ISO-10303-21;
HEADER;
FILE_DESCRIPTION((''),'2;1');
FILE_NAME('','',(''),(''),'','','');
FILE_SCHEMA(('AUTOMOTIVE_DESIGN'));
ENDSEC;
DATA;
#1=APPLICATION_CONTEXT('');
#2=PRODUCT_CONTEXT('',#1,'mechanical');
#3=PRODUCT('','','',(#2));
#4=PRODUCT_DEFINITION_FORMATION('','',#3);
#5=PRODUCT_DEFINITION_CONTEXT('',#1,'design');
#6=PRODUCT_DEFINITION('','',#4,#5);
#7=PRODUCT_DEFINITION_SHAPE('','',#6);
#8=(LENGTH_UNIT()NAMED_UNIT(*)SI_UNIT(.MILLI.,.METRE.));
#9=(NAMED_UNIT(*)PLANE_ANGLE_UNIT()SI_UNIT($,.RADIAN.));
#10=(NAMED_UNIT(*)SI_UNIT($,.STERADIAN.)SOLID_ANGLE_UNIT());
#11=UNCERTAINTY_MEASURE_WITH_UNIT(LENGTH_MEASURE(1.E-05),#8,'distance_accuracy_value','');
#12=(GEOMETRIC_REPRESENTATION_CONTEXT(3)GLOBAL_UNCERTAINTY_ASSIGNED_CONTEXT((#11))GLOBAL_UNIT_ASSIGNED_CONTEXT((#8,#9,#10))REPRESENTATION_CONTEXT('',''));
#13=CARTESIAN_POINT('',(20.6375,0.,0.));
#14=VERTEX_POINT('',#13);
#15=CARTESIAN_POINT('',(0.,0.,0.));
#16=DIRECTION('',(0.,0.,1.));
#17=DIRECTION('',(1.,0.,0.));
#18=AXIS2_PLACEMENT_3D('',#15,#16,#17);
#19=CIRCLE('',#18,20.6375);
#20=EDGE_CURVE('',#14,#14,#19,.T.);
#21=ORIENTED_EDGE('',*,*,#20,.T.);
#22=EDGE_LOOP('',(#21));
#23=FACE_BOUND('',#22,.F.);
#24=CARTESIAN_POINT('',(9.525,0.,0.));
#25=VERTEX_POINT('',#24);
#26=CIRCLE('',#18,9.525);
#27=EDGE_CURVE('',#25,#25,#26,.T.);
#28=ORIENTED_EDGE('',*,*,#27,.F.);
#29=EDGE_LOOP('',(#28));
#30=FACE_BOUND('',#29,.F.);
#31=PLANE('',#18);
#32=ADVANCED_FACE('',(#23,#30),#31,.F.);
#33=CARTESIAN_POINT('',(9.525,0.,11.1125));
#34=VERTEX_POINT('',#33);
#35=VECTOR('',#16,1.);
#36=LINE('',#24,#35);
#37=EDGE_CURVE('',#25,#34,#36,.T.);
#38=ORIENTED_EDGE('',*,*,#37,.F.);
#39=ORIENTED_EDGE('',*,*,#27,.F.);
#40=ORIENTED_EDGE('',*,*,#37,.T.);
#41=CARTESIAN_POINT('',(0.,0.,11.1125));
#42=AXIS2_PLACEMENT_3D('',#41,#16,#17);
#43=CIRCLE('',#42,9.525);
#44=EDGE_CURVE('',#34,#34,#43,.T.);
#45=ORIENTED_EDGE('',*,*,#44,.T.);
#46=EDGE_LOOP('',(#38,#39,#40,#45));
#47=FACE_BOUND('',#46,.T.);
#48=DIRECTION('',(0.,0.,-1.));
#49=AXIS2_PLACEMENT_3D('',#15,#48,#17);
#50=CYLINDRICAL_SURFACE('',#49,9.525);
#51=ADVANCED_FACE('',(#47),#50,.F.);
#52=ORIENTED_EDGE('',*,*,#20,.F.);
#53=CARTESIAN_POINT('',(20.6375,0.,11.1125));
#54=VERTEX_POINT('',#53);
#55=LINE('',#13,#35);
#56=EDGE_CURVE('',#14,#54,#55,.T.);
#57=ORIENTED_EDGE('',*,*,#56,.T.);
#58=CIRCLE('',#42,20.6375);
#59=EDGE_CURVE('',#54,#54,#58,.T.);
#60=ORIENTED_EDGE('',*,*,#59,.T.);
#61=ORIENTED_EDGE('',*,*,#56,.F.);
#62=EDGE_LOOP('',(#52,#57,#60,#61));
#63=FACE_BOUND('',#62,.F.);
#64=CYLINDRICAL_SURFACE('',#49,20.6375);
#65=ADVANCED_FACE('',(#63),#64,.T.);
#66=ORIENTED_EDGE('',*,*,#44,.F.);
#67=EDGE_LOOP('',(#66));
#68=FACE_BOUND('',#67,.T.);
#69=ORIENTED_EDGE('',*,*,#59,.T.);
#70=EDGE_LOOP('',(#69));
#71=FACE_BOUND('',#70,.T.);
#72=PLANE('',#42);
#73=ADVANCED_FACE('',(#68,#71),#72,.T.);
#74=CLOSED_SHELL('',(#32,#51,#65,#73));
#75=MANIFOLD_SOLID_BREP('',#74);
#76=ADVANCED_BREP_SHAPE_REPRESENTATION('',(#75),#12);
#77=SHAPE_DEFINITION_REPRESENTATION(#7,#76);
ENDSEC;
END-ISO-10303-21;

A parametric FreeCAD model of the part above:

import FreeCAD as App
import Part
import Sketcher
Q = App.Units.Quantity

doc = App.newDocument("Part")
body = doc.addObject("PartDesign::Body", "Body")

sketch1 = doc.addObject("Sketcher::SketchObject", "Sketch")
body.addObject(sketch1)
sketch1.AttachmentSupport = (doc.XY_Plane, [""])
sketch1.MapMode = "FlatFace"
sketch1.addGeometry(Part.Circle(App.Vector(0, 0, 0), App.Vector(0, 0, 1), 21), False)
sketch1.addGeometry(Part.Circle(App.Vector(0, 0, 0), App.Vector(0, 0, 1), 10), False)
sketch1.addConstraint(Sketcher.Constraint("Coincident", 0, 3, -1, 1))
sketch1.addConstraint(Sketcher.Constraint("Coincident", 1, 3, -1, 1))
sketch1.addConstraint(Sketcher.Constraint("Diameter", 1, Q("0.75 in")))
sketch1.addConstraint(Sketcher.Constraint("Diameter", 0, Q("1.625 in")))
pad1 = doc.addObject("PartDesign::Pad", "Pad")
body.addObject(pad1)
pad1.Profile = sketch1
pad1.Length = Q("0.4375 in")

doc.recompute()
